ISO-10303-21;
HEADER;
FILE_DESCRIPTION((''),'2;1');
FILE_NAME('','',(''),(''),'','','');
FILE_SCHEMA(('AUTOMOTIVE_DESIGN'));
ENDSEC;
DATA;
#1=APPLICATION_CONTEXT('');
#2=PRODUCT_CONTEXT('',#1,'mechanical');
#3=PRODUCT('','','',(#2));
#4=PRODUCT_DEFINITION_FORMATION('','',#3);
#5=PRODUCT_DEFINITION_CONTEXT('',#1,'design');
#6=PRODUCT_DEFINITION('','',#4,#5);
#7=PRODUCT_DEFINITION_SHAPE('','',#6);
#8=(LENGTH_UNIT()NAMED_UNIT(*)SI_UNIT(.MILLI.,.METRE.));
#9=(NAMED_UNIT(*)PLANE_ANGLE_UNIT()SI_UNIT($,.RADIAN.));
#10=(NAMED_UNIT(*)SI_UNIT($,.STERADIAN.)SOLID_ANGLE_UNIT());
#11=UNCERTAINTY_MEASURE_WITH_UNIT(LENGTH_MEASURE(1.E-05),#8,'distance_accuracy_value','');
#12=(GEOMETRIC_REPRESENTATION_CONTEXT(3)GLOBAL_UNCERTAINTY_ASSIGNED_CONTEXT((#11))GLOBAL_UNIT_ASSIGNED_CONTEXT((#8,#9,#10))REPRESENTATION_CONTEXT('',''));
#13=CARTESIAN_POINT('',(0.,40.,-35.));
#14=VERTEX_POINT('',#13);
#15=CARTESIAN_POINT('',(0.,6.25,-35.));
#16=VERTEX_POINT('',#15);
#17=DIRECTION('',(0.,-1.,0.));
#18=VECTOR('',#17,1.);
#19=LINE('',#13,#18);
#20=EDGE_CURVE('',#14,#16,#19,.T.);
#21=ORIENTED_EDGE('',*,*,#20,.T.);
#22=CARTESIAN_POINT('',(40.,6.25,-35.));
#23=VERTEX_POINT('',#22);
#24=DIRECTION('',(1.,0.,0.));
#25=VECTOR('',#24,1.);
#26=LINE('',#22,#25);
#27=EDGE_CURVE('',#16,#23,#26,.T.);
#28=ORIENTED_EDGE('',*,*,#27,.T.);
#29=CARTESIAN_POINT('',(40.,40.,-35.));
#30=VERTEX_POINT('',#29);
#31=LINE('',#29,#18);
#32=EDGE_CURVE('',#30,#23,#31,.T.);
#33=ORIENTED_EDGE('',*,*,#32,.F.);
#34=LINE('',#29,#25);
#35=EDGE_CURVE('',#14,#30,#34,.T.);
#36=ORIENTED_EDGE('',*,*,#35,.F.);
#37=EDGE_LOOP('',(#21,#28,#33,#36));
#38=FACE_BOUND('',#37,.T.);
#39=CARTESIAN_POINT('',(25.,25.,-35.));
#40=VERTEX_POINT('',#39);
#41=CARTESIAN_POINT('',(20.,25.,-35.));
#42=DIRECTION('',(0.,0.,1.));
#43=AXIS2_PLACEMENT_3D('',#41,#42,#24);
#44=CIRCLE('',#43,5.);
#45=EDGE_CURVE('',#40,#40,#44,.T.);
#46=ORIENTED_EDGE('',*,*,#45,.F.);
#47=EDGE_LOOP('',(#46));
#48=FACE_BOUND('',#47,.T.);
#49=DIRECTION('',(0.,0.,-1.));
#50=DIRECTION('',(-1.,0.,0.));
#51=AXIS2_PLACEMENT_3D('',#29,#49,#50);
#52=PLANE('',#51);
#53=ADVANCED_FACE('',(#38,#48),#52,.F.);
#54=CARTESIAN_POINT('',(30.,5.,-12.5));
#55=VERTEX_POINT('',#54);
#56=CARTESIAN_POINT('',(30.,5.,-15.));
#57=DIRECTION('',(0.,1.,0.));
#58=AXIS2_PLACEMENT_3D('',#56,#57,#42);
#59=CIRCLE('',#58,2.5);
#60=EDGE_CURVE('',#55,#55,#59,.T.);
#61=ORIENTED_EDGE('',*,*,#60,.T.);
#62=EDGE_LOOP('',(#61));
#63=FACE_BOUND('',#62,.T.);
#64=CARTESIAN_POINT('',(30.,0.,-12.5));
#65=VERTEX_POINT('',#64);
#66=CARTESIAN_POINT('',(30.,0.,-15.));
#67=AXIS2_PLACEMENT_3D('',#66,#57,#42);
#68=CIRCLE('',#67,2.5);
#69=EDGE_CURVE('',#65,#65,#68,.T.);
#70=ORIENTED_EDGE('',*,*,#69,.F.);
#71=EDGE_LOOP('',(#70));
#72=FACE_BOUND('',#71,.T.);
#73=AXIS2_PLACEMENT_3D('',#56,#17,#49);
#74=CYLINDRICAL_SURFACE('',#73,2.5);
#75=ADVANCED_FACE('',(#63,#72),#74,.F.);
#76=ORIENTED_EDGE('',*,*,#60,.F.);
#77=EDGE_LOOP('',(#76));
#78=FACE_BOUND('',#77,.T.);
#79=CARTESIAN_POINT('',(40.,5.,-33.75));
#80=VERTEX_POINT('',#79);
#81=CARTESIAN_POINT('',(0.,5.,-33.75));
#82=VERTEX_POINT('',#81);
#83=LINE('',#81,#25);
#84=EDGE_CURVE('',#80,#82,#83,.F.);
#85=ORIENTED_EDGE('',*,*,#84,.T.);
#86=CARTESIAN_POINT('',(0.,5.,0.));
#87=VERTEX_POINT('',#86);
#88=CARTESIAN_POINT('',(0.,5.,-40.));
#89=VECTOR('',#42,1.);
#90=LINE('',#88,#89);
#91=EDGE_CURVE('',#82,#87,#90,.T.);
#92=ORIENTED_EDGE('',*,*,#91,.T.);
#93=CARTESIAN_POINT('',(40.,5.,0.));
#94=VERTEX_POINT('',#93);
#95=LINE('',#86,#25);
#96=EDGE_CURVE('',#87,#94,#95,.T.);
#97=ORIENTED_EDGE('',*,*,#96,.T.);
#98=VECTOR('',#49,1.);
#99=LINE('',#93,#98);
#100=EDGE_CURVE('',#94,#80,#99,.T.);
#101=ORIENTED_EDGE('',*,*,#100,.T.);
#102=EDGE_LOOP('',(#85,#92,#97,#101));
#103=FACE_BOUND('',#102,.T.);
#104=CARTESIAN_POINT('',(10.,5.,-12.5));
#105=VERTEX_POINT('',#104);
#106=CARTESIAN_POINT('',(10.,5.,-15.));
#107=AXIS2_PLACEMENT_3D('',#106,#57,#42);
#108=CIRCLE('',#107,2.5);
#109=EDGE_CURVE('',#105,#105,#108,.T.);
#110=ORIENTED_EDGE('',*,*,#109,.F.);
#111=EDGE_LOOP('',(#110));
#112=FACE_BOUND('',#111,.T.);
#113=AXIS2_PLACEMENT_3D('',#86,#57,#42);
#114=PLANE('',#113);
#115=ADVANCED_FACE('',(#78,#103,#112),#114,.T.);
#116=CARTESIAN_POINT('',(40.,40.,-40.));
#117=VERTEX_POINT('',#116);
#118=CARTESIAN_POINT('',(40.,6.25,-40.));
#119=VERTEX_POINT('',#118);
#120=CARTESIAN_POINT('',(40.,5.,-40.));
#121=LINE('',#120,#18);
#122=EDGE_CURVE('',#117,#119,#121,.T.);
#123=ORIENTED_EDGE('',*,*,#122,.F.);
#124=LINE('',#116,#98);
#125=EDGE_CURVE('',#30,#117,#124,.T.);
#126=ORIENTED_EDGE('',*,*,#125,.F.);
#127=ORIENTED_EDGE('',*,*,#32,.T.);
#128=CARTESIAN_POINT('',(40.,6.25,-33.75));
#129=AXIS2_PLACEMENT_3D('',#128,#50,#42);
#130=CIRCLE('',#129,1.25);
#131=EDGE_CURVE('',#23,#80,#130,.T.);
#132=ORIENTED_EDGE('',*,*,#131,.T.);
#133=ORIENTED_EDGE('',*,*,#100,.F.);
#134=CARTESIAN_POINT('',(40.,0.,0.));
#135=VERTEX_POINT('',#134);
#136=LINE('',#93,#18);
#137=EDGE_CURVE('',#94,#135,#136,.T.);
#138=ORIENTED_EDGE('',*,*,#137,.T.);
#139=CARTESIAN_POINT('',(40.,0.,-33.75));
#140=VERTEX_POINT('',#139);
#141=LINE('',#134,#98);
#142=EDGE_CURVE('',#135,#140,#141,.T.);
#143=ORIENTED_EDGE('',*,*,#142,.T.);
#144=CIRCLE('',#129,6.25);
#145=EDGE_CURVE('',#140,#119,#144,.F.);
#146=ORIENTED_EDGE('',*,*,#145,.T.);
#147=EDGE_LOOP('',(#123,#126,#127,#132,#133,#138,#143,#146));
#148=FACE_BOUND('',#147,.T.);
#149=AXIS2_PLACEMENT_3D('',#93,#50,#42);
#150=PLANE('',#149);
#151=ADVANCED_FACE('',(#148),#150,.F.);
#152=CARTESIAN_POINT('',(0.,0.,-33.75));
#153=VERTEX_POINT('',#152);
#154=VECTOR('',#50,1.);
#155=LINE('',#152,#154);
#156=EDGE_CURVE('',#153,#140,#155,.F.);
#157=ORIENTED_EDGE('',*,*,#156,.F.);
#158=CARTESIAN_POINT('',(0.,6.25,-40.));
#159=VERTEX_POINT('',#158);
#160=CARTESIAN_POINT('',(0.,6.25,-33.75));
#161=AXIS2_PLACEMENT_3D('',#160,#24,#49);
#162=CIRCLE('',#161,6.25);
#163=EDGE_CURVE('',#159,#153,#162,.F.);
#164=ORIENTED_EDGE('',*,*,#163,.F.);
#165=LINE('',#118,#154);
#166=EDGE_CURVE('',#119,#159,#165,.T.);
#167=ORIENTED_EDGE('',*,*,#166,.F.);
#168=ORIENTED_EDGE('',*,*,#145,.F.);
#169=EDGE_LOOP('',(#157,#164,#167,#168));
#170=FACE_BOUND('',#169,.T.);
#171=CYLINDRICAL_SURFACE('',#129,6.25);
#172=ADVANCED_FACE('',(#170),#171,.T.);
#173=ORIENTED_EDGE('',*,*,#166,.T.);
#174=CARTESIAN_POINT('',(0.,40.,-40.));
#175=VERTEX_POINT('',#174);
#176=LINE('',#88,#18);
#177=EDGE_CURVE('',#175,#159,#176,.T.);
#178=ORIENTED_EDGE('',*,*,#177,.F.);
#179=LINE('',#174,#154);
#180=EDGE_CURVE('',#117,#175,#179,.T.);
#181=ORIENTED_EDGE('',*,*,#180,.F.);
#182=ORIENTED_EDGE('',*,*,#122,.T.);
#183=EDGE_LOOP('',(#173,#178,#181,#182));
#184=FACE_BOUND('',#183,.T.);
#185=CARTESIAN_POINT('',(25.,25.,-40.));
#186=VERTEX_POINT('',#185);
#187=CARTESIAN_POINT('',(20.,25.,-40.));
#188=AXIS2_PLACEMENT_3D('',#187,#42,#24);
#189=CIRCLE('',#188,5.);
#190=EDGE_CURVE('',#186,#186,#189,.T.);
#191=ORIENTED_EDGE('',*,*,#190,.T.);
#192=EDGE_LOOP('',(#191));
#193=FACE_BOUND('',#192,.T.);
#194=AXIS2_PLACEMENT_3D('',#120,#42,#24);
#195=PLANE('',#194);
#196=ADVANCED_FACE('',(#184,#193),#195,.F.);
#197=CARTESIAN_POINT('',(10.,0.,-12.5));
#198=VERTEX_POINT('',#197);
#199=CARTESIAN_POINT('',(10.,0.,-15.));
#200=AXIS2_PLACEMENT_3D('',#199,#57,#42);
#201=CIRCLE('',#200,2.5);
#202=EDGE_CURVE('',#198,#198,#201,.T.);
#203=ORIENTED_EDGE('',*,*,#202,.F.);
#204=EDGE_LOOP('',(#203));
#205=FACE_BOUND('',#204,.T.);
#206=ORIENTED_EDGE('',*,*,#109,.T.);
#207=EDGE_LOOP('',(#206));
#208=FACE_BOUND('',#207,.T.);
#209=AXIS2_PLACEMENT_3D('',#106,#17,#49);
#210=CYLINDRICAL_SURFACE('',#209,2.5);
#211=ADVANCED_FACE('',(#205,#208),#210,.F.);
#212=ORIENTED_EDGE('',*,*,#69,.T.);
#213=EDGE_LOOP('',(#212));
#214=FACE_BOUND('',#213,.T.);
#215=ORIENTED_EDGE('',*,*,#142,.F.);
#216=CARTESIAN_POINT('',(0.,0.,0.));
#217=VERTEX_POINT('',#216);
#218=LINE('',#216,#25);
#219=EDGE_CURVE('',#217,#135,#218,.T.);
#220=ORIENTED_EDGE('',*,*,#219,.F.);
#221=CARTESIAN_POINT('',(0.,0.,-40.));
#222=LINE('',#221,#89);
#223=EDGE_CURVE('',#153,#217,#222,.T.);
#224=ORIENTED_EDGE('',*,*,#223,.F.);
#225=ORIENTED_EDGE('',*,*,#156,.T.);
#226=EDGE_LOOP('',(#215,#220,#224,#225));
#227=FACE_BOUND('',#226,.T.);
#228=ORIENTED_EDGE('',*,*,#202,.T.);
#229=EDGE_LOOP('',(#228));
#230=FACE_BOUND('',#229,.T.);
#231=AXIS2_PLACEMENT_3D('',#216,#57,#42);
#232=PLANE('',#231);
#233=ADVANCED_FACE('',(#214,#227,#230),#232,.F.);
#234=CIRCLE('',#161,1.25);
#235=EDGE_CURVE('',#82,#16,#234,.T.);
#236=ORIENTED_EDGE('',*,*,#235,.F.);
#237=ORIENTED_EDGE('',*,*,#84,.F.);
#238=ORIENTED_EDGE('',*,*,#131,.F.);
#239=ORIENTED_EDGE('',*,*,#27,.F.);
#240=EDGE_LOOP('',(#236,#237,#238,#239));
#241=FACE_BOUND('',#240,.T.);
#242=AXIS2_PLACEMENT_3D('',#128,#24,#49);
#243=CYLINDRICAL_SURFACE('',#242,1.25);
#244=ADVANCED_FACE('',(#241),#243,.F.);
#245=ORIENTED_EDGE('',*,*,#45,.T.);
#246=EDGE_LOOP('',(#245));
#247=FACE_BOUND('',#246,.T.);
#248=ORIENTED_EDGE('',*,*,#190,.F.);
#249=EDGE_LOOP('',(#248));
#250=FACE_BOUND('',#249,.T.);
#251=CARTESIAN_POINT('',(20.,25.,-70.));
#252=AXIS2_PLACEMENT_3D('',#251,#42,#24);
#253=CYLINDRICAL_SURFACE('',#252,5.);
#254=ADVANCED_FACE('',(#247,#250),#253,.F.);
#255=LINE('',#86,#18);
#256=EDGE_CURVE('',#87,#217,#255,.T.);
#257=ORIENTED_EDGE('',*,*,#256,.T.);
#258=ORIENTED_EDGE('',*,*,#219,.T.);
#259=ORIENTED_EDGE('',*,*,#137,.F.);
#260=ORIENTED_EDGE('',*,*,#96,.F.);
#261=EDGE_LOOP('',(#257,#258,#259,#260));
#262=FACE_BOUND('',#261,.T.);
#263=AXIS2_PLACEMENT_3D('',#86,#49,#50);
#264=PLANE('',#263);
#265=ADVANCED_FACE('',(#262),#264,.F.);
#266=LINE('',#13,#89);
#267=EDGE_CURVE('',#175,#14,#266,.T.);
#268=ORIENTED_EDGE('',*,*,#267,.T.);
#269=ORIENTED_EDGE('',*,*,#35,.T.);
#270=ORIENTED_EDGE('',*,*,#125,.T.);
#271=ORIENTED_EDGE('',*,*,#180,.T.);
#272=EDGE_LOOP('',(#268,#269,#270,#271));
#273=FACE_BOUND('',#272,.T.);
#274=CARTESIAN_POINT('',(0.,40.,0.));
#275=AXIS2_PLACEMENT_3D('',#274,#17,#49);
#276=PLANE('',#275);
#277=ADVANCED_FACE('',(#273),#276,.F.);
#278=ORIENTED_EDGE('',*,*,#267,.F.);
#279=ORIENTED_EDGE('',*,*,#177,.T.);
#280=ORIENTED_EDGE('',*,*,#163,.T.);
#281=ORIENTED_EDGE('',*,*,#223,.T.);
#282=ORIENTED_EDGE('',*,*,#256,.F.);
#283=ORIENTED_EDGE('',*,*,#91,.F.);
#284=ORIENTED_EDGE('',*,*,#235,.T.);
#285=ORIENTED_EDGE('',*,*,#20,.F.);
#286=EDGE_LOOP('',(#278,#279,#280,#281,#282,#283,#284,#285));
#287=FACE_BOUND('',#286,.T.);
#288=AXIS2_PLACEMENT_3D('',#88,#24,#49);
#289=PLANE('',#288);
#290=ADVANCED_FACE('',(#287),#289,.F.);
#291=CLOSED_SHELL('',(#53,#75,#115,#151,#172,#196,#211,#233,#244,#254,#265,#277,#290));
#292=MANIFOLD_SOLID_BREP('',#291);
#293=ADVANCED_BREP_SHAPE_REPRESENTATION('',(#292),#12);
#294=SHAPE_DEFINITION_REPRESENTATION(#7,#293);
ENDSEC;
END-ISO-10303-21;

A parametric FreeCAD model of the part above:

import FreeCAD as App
import Part
import Sketcher

V = App.Vector
Q = App.Units.Quantity


def edges_at(feature, points):
    """Names of the edges that pass closest to the given points."""
    edges = feature.Shape.Edges
    near = lambda p: min(range(len(edges)), key=lambda i: edges[i].distToShape(Part.Vertex(*p))[0])
    return sorted({f"Edge{near(p) + 1}" for p in points})

doc = App.newDocument("Part")
body = doc.addObject("PartDesign::Body", "Body")

# Sketch on XZ plane
sketch1 = body.newObject("Sketcher::SketchObject", "Sketch")
sketch1.AttachmentSupport = (doc.getObject("XZ_Plane"), [""])
sketch1.MapMode = "FlatFace"
sketch1.addGeometry([
    Part.LineSegment(V(0, -40, 0), V(0, 0, 0)),  # 0
    Part.LineSegment(V(0, 0, 0), V(40, 0, 0)),  # 1
    Part.LineSegment(V(40, 0, 0), V(40, -40, 0)),  # 2
    Part.LineSegment(V(40, -40, 0), V(0, -40, 0)),  # 3
    Part.Circle(V(10, -15, 0), V(0, 0, 1), 2.5),  # 4
    Part.Circle(V(30, -15, 0), V(0, 0, 1), 2.5),  # 5
], False)
sketch1.addConstraint([
    Sketcher.Constraint("Coincident", 0, 2, 1, 1),
    Sketcher.Constraint("Coincident", 1, 2, 2, 1),
    Sketcher.Constraint("Coincident", 2, 2, 3, 1),
    Sketcher.Constraint("Coincident", 3, 2, 0, 1),
    Sketcher.Constraint("Vertical", 0),
    Sketcher.Constraint("Horizontal", 1),
    Sketcher.Constraint("Vertical", 2),
    Sketcher.Constraint("Horizontal", 3),
    Sketcher.Constraint("Coincident", 0, 2, -1, 1),
    Sketcher.Constraint("Equal", 4, 5),
    Sketcher.Constraint("Horizontal", 4, 3, 5, 3),
    Sketcher.Constraint("Equal", 3, 0),
    Sketcher.Constraint("Diameter", 4, Q("5 mm")),
    Sketcher.Constraint("DistanceX", 1, 1, 1, 2, Q("40 mm")),
    Sketcher.Constraint("DistanceX", -1, 1, 4, 3, Q("10 mm")),
    Sketcher.Constraint("DistanceY", 4, 3, -1, 1, Q("15 mm")),
    Sketcher.Constraint("DistanceX", -1, 1, 5, 3, Q("30 mm")),
])
pad1 = body.newObject("PartDesign::Pad", "Pad")
pad1.Profile = sketch1
pad1.Length = 5
pad1.Reversed = True

# Sketch on XZ plane
sketch2 = body.newObject("Sketcher::SketchObject", "Sketch001")
sketch2.AttachmentSupport = (doc.getObject("XZ_Plane"), [""])
sketch2.MapMode = "FlatFace"
sketch2.AttachmentOffset = App.Placement(V(0, 0, -5), App.Rotation())
sketch2.addGeometry([
    Part.LineSegment(V(0, -40, 0), V(0, -35, 0)),
    Part.LineSegment(V(0, -35, 0), V(40, -35, 0)),
    Part.LineSegment(V(40, -35, 0), V(40, -40, 0)),
    Part.LineSegment(V(40, -40, 0), V(0, -40, 0)),
], False)
sketch2.addConstraint([
    Sketcher.Constraint("Coincident", 0, 2, 1, 1),
    Sketcher.Constraint("Coincident", 1, 2, 2, 1),
    Sketcher.Constraint("Coincident", 2, 2, 3, 1),
    Sketcher.Constraint("Coincident", 3, 2, 0, 1),
    Sketcher.Constraint("Vertical", 0),
    Sketcher.Constraint("Horizontal", 1),
    Sketcher.Constraint("Vertical", 2),
    Sketcher.Constraint("Horizontal", 3),
    Sketcher.Constraint("PointOnObject", 0, 2, -2),
    Sketcher.Constraint("DistanceX", 1, 1, 1, 2, Q("40 mm")),
    Sketcher.Constraint("DistanceY", 0, 1, 0, 2, Q("5 mm")),
    Sketcher.Constraint("DistanceY", 0, 2, -1, 1, Q("35 mm")),
])
pad2 = body.newObject("PartDesign::Pad", "Pad001")
pad2.Profile = sketch2
pad2.Length = 35
pad2.Reversed = True

# Sketch on XY plane
sketch3 = body.newObject("Sketcher::SketchObject", "Sketch002")
sketch3.AttachmentSupport = (doc.getObject("XY_Plane"), [""])
sketch3.MapMode = "FlatFace"
sketch3.AttachmentOffset = App.Placement(V(0, 0, -35), App.Rotation())
sketch3.addGeometry(Part.Circle(V(20, 25, 0), V(0, 0, 1), 5), False)
sketch3.addConstraint([
    Sketcher.Constraint("Diameter", 0, Q("10 mm")),
    Sketcher.Constraint("DistanceX", -1, 1, 0, 3, Q("20 mm")),
    Sketcher.Constraint("DistanceY", -1, 1, 0, 3, Q("25 mm")),
])
pocket1 = body.newObject("PartDesign::Pocket", "Pocket")
pocket1.Profile = sketch3
pocket1.Length = 35
doc.recompute()

fillet = body.newObject("PartDesign::Fillet", "Fillet")
fillet.Base = (pocket1, edges_at(pocket1, [(20, 0, -40)]))
fillet.Radius = 6.25
doc.recompute()

fillet2 = body.newObject("PartDesign::Fillet", "Fillet001")
fillet2.Base = (fillet, edges_at(fillet, [(20, 5, -35)]))
fillet2.Radius = 1.25

doc.recompute()
